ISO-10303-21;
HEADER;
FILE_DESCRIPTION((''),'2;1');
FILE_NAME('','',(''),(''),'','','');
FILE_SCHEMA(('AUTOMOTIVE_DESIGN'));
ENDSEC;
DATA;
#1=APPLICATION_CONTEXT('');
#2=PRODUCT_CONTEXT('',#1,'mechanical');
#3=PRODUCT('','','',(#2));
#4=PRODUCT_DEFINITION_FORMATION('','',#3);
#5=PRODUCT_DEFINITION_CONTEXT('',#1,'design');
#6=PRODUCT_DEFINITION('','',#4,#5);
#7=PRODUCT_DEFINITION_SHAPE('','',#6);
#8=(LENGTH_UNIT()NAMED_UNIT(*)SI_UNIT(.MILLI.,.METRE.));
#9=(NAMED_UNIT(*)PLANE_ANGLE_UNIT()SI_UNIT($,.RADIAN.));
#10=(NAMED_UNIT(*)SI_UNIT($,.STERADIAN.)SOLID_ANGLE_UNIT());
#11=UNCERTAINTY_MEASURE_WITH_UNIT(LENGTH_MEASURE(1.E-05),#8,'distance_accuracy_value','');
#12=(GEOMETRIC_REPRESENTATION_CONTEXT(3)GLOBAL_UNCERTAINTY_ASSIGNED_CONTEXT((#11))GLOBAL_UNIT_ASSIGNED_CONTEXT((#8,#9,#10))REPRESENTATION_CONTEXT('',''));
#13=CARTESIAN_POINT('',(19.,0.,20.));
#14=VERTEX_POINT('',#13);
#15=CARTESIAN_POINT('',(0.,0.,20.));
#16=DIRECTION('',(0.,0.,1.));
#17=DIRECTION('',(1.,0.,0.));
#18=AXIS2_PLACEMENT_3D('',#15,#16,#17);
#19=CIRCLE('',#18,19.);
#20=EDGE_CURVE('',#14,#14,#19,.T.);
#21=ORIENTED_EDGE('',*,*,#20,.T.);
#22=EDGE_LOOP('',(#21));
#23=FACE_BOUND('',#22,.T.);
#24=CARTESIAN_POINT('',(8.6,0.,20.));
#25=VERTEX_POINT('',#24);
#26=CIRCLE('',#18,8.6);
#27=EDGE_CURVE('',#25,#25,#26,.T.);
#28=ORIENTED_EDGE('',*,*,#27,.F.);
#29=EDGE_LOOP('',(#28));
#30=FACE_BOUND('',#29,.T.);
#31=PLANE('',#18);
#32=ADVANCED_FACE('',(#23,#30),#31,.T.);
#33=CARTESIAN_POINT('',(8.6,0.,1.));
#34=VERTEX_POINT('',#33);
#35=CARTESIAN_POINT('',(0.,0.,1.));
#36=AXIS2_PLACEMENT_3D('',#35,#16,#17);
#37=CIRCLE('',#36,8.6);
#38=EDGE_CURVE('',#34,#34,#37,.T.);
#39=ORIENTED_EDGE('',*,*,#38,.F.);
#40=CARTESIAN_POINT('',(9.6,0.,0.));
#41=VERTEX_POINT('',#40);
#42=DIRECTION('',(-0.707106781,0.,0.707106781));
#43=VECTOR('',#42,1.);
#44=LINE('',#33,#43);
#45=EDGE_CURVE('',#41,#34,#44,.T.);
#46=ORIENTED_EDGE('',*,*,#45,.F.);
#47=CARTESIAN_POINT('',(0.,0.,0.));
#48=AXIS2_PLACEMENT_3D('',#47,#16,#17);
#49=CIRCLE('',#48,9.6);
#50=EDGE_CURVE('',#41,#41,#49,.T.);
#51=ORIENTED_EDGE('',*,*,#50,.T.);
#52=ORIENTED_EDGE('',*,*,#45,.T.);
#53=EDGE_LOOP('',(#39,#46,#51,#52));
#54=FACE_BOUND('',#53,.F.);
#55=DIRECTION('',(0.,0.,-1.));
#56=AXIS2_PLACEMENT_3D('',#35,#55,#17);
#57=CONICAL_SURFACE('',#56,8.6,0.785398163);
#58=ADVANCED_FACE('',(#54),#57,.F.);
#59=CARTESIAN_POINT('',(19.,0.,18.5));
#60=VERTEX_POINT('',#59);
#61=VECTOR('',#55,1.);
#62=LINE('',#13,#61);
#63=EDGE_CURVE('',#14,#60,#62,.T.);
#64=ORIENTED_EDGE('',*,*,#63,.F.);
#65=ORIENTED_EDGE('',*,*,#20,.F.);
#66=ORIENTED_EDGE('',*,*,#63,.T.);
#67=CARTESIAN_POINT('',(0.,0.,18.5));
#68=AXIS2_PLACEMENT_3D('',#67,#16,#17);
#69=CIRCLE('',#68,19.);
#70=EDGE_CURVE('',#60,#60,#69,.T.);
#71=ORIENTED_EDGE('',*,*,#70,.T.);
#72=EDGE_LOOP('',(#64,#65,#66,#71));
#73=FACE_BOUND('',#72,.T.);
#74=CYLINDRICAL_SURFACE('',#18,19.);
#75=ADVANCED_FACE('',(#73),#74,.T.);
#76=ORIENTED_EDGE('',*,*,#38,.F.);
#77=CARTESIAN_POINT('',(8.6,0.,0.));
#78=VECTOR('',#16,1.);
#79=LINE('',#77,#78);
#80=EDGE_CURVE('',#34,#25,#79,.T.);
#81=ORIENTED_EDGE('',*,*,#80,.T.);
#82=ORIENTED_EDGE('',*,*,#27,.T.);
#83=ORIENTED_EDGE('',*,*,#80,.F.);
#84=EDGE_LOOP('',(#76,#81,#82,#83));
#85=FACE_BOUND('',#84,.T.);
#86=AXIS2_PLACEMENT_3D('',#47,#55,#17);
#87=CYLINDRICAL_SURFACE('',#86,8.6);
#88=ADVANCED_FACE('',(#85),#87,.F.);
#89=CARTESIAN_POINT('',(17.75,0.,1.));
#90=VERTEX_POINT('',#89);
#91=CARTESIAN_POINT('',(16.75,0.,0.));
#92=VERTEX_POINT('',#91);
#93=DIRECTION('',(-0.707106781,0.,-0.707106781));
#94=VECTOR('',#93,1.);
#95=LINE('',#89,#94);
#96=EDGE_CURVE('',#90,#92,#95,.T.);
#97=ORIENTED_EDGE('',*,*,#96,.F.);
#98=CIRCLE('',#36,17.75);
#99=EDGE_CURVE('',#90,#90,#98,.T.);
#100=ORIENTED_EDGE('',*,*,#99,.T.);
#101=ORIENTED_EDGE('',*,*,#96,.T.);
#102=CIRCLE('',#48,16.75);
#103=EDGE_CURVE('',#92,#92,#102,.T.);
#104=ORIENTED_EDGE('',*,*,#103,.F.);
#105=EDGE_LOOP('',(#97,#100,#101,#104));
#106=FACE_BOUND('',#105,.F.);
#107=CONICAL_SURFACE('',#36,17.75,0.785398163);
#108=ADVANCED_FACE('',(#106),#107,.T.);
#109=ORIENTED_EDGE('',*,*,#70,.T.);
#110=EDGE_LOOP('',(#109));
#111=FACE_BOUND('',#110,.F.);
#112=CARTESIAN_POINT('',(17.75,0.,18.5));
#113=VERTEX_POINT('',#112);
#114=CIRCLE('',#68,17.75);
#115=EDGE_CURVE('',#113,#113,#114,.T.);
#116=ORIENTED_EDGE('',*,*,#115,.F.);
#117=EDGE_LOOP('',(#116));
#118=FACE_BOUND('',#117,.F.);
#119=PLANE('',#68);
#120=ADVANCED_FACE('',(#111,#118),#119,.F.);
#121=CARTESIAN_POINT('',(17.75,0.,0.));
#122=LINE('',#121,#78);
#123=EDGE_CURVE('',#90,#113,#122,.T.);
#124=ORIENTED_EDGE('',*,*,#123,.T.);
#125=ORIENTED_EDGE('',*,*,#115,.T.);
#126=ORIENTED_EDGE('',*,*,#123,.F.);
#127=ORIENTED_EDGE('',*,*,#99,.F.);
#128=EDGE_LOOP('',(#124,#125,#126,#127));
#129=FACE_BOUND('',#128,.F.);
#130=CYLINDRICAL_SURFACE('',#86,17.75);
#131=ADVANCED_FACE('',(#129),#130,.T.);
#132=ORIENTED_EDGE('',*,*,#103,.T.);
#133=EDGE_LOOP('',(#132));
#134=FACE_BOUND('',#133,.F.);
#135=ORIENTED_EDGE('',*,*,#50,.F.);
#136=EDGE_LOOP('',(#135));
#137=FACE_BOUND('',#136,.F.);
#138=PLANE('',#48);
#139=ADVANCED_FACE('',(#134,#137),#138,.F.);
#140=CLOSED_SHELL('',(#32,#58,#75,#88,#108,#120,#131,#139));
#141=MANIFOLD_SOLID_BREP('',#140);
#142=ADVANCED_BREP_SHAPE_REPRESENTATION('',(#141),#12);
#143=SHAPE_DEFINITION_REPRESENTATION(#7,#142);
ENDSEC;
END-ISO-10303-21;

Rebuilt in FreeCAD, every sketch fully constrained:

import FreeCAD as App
import Part
import Sketcher

V = App.Vector


def edges_at(feature, points):
    """Names of the edges that pass closest to the given points."""
    edges = feature.Shape.Edges
    near = lambda p: min(range(len(edges)), key=lambda i: edges[i].distToShape(Part.Vertex(*p))[0])
    return sorted({f"Edge{near(p) + 1}" for p in points})

doc = App.newDocument("Part")
body = doc.addObject("PartDesign::Body", "Body")

# Sketch on XY plane
sketch1 = body.newObject("Sketcher::SketchObject", "Sketch")
sketch1.AttachmentSupport = (doc.getObject("XY_Plane"), [""])
sketch1.MapMode = "FlatFace"
sketch1.addGeometry([
    Part.Circle(V(0, 0, 0), V(0, 0, 1), 17.75),
    Part.Circle(V(0, 0, 0), V(0, 0, 1), 8.6),
], False)
sketch1.addConstraint([
    Sketcher.Constraint("Coincident", 0, 3, -1, 1),
    Sketcher.Constraint("Coincident", 1, 3, -1, 1),
    Sketcher.Constraint("Diameter", 0, 35.5),
    Sketcher.Constraint("Diameter", 1, 17.2),
])
pad1 = body.newObject("PartDesign::Pad", "Pad")
pad1.Profile = sketch1
pad1.Length = 20

# Sketch on XY plane
sketch2 = body.newObject("Sketcher::SketchObject", "Sketch001")
sketch2.AttachmentSupport = (doc.getObject("XY_Plane"), [""])
sketch2.MapMode = "FlatFace"
sketch2.AttachmentOffset = App.Placement(V(0, 0, 20), App.Rotation())
sketch2.addGeometry([
    Part.Circle(V(0, 0, 0), V(0, 0, 1), 19),
    Part.Circle(V(0, 0, 0), V(0, 0, 1), 17.75),
], False)
sketch2.addConstraint([
    Sketcher.Constraint("Coincident", 0, 3, -1, 1),
    Sketcher.Constraint("Coincident", 1, 3, -1, 1),
    Sketcher.Constraint("Diameter", 0, 38.0),
    Sketcher.Constraint("Diameter", 1, 35.5),
])
pad2 = body.newObject("PartDesign::Pad", "Pad001")
pad2.Profile = sketch2
pad2.Length = 1.5
pad2.Reversed = True
doc.recompute()

chamfer = body.newObject("PartDesign::Chamfer", "Chamfer")
chamfer.Base = (pad2, edges_at(pad2, [(-17.75, 0, 0)]))
chamfer.Size = 1
doc.recompute()

chamfer2 = body.newObject("PartDesign::Chamfer", "Chamfer001")
chamfer2.Base = (chamfer, edges_at(chamfer, [(-8.6, 0, 0)]))
chamfer2.Size = 1

doc.recompute()
